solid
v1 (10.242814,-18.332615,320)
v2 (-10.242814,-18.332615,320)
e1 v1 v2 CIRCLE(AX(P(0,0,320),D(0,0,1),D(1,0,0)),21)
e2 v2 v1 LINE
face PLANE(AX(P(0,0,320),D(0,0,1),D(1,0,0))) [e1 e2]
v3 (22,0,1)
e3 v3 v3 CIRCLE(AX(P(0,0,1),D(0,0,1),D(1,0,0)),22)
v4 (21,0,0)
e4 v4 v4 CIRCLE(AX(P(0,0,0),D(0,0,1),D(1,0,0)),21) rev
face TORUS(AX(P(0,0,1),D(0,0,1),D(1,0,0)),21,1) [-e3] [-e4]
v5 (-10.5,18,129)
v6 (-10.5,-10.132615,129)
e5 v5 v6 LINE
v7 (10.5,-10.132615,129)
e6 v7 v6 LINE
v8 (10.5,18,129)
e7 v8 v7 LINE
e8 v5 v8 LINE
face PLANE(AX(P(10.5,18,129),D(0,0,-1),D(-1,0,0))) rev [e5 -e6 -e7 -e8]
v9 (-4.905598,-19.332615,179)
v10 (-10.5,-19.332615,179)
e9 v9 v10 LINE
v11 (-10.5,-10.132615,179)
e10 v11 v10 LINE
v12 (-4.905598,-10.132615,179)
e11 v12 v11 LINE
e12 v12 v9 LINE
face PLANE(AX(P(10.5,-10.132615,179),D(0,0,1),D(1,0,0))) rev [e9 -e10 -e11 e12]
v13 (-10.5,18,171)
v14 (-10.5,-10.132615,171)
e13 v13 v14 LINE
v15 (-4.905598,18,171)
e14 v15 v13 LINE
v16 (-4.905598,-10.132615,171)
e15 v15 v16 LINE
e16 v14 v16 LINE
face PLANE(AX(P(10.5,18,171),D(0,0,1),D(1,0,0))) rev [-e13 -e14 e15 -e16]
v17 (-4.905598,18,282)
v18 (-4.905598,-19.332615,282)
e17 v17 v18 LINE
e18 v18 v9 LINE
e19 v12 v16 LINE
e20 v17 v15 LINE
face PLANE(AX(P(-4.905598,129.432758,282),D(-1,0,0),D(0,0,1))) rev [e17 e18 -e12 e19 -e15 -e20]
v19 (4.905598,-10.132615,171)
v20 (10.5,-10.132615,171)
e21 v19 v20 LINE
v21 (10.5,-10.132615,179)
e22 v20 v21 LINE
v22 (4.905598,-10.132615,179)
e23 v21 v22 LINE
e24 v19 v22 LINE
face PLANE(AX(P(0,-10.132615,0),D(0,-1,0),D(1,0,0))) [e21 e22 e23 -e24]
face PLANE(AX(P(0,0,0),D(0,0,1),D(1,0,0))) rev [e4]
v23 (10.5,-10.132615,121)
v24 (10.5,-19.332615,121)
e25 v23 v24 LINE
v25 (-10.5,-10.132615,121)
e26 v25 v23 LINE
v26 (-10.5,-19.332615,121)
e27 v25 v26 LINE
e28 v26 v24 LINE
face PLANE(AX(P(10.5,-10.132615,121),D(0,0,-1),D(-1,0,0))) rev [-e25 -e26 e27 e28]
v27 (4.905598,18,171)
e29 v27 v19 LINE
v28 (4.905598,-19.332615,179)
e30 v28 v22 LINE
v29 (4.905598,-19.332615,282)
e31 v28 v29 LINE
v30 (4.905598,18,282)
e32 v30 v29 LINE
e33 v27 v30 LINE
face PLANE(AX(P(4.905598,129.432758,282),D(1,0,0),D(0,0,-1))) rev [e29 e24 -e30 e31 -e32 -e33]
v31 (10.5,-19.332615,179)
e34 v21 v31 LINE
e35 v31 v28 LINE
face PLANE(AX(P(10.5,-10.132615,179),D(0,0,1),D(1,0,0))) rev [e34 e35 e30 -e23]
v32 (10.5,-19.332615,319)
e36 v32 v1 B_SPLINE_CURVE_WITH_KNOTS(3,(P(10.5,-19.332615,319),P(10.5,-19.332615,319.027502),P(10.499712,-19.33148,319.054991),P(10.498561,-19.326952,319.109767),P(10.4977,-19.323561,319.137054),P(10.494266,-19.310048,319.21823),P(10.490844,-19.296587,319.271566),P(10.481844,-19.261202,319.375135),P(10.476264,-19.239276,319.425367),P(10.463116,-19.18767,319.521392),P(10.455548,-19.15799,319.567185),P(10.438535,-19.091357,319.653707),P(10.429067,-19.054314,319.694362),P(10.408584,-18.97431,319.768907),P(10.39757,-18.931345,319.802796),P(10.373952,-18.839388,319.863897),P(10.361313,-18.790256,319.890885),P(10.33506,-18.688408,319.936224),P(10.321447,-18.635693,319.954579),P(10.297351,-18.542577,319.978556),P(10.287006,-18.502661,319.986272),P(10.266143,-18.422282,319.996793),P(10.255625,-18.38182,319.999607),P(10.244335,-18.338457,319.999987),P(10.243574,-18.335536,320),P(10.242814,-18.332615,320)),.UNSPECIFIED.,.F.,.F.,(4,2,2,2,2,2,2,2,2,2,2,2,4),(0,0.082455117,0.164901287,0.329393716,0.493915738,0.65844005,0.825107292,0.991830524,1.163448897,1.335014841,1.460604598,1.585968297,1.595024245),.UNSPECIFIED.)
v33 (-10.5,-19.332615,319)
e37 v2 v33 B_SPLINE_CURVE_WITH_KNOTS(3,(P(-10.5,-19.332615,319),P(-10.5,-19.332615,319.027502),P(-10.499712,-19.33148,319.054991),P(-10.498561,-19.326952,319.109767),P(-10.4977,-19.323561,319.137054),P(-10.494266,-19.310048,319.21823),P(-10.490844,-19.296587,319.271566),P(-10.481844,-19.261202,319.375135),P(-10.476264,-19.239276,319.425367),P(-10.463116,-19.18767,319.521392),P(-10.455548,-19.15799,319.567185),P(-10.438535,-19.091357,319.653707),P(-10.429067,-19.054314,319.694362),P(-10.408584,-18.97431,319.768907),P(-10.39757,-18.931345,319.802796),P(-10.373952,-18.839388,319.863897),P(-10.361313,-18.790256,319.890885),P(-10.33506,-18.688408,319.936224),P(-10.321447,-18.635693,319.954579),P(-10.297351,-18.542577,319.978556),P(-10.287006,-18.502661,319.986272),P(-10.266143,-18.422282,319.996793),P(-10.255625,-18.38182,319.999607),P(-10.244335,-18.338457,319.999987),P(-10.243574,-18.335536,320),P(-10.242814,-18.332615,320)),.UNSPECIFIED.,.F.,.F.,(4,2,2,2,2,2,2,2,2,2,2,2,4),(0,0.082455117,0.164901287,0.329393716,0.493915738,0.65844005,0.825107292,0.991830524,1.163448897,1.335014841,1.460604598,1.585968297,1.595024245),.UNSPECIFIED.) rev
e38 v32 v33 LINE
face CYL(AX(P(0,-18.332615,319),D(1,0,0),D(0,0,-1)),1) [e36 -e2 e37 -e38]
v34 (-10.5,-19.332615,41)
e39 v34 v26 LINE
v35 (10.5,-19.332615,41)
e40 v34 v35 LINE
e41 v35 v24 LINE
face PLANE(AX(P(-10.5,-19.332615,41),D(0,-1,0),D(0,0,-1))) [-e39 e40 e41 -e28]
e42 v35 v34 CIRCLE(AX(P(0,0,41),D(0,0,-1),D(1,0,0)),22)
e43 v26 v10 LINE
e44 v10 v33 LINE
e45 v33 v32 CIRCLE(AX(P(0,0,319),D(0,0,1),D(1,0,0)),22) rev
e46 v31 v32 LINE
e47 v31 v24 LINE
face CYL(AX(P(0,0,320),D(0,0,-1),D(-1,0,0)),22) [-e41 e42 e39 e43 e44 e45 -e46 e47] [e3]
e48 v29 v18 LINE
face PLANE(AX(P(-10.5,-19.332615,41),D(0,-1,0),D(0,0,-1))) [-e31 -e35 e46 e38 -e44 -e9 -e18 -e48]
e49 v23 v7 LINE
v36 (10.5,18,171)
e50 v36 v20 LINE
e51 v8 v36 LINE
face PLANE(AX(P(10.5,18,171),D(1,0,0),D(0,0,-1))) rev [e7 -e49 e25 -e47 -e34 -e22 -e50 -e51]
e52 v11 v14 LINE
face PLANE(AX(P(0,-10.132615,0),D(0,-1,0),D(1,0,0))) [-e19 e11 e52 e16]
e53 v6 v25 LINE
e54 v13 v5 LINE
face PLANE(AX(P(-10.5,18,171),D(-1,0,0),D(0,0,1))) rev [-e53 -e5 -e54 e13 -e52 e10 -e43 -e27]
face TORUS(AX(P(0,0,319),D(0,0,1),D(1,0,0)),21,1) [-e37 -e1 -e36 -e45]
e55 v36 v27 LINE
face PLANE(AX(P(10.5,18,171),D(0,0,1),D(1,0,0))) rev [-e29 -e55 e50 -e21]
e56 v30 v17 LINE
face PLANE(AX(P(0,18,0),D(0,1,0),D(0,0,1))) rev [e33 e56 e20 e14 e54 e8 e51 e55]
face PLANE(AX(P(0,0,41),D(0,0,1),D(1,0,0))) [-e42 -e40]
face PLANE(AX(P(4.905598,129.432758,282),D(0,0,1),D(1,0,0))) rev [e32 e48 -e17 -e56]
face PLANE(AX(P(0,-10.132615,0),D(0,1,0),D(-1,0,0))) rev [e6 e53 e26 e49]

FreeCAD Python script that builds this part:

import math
import FreeCAD as App
import Part
import Sketcher

V = App.Vector
Q = App.Units.Quantity


def edges_at(feature, points):
    """Names of the edges that pass closest to the given points."""
    edges = feature.Shape.Edges
    near = lambda p: min(range(len(edges)), key=lambda i: edges[i].distToShape(Part.Vertex(*p))[0])
    return sorted({f"Edge{near(p) + 1}" for p in points})


def add_polygon(sketch, points):
    """Adds a closed chain of lines whose ends are joined by coincident constraints."""
    first, n = sketch.GeometryCount, len(points)
    for a, b in zip(points, points[1:] + points[:1]):
        sketch.addGeometry(Part.LineSegment(App.Vector(*a, 0), App.Vector(*b, 0)), False)
    for i in range(n):
        sketch.addConstraint(Sketcher.Constraint("Coincident", first + i, 2, first + (i + 1) % n, 1))

doc = App.newDocument("Part")
body = doc.addObject("PartDesign::Body", "Body")

sketch1 = body.newObject("Sketcher::SketchObject", "Sketch")
sketch1.AttachmentSupport = (doc.getObject("XY_Plane"), [""])
sketch1.MapMode = "FlatFace"
sketch1.addGeometry(Part.Circle(V(0, 0, 0), V(0, 0, 1), 22), False)
sketch1.addConstraint([
    Sketcher.Constraint("Coincident", 0, 3, -1, 1),
    Sketcher.Constraint("Diameter", 0, Q("44 mm")),
])
pad1 = body.newObject("PartDesign::Pad", "Pad")
pad1.Profile = sketch1
pad1.Length = 320

sketch2 = body.newObject("Sketcher::SketchObject", "Sketch001")
sketch2.AttachmentSupport = (doc.getObject("XZ_Plane"), [""])
sketch2.MapMode = "FlatFace"
sketch2.AttachmentOffset = App.Placement(V(0, 0, 22), App.Rotation())
add_polygon(sketch2, [(10, 129), (10, 171), (-10, 171), (-10, 129)])
sketch2.addConstraint([
    Sketcher.Constraint("Vertical", 0),
    Sketcher.Constraint("Horizontal", 1),
    Sketcher.Constraint("Vertical", 2),
    Sketcher.Constraint("Horizontal", 3),
    Sketcher.Constraint("DistanceX", 1, 2, 1, 1, Q("21 mm")),
    Sketcher.Constraint("DistanceY", 0, 1, 0, 2, Q("42 mm")),
    Sketcher.Constraint("DistanceY", -1, 1, 0, 2, Q("171 mm")),
    Sketcher.Constraint("DistanceX", -1, 1, 0, 2, Q("10.5 mm")),
])
pocket1 = body.newObject("PartDesign::Pocket", "Pocket")
pocket1.Profile = sketch2
pocket1.Length = 40

sketch3 = body.newObject("Sketcher::SketchObject", "Sketch002")
sketch3.AttachmentSupport = (doc.getObject("XY_Plane"), [""])
sketch3.MapMode = "FlatFace"
sketch3.AttachmentOffset = App.Placement(V(0, 0, 171), App.Rotation())
sketch3.addGeometry([
    Part.LineSegment(V(-10, -19, 0), V(10, -19, 0)),
    Part.ArcOfCircle(Part.Circle(V(0, 0, 0), V(0, 0, 1), 22), math.radians(-119), math.radians(-61)),
], False)
sketch3.addConstraint([
    Sketcher.Constraint("Coincident", 0, 1, 1, 1),
    Sketcher.Constraint("Coincident", 1, 2, 0, 2),
    Sketcher.Constraint("Horizontal", 0),
    Sketcher.Constraint("Coincident", 1, 3, -1, 1),
    Sketcher.Constraint("Radius", 1, Q("22 mm")),
    Sketcher.Constraint("DistanceX", 0, 1, 0, 2, Q("21 mm")),
])
pocket2 = body.newObject("PartDesign::Pocket", "Pocket001")
pocket2.Profile = sketch3
pocket2.Type = "TwoLengths"
pocket2.Length = 130
pocket2.Length2 = 150

sketch4 = body.newObject("Sketcher::SketchObject", "Sketch003")
sketch4.AttachmentSupport = (doc.getObject("XZ_Plane"), [""])
sketch4.MapMode = "FlatFace"
sketch4.AttachmentOffset = App.Placement(V(0, 0, 19.332615), App.Rotation())
add_polygon(sketch4, [(10, 171), (10, 179), (-10, 179), (-10, 171)])
add_polygon(sketch4, [(10, 121), (10, 129), (-10, 129), (-10, 121)])
sketch4.addConstraint([
    Sketcher.Constraint("Vertical", 0),
    Sketcher.Constraint("Horizontal", 1),
    Sketcher.Constraint("Vertical", 2),
    Sketcher.Constraint("Horizontal", 3),
    Sketcher.Constraint("Vertical", 4),
    Sketcher.Constraint("Horizontal", 5),
    Sketcher.Constraint("Vertical", 6),
    Sketcher.Constraint("Horizontal", 7),
    Sketcher.Constraint("Vertical", 3, 2, 4, 2),
    Sketcher.Constraint("Vertical", 2, 2, 5, 2),
    Sketcher.Constraint("Equal", 2, 4),
    Sketcher.Constraint("DistanceX", 1, 2, 1, 1, Q("21 mm")),
    Sketcher.Constraint("DistanceY", 0, 1, 0, 2, Q("8 mm")),
    Sketcher.Constraint("DistanceY", -1, 1, 0, 2, Q("179 mm")),
    Sketcher.Constraint("DistanceY", -1, 1, 4, 2, Q("129 mm")),
    Sketcher.Constraint("DistanceX", -1, 1, 0, 2, Q("10.5 mm")),
])
pocket3 = body.newObject("PartDesign::Pocket", "Pocket002")
pocket3.Profile = sketch4
pocket3.Length = 9.2

sketch5 = body.newObject("Sketcher::SketchObject", "Sketch004")
sketch5.AttachmentSupport = (doc.getObject("XZ_Plane"), [""])
sketch5.MapMode = "FlatFace"
sketch5.AttachmentOffset = App.Placement(V(0, 0, 19.332615), App.Rotation())
add_polygon(sketch5, [(5, 171), (5, 282), (-5, 282), (-5, 171)])
sketch5.addConstraint([
    Sketcher.Constraint("Vertical", 0),
    Sketcher.Constraint("Horizontal", 1),
    Sketcher.Constraint("Vertical", 2),
    Sketcher.Constraint("Horizontal", 3),
    Sketcher.Constraint("DistanceY", 0, 1, 0, 2, Q("111 mm")),
    Sketcher.Constraint("DistanceY", -1, 1, 0, 2, Q("282 mm")),
    Sketcher.Constraint("DistanceX", -1, 1, 0, 2, Q("4.905598 mm")),
    Sketcher.Constraint("DistanceX", 1, 2, -1, 1, Q("4.905598 mm")),
])
pocket4 = body.newObject("PartDesign::Pocket", "Pocket003")
pocket4.Profile = sketch5
pocket4.Length = 37.332615
doc.recompute()

fillet = body.newObject("PartDesign::Fillet", "Fillet")
fillet.Base = (pocket4, edges_at(pocket4, [(-22, 0, 0)]))
fillet.Radius = 1
doc.recompute()

fillet2 = body.newObject("PartDesign::Fillet", "Fillet001")
fillet2.Base = (fillet, edges_at(fillet, [(-11.247, 18.908, 320), (0, -19.333, 320)]))
fillet2.Radius = 1

doc.recompute()
